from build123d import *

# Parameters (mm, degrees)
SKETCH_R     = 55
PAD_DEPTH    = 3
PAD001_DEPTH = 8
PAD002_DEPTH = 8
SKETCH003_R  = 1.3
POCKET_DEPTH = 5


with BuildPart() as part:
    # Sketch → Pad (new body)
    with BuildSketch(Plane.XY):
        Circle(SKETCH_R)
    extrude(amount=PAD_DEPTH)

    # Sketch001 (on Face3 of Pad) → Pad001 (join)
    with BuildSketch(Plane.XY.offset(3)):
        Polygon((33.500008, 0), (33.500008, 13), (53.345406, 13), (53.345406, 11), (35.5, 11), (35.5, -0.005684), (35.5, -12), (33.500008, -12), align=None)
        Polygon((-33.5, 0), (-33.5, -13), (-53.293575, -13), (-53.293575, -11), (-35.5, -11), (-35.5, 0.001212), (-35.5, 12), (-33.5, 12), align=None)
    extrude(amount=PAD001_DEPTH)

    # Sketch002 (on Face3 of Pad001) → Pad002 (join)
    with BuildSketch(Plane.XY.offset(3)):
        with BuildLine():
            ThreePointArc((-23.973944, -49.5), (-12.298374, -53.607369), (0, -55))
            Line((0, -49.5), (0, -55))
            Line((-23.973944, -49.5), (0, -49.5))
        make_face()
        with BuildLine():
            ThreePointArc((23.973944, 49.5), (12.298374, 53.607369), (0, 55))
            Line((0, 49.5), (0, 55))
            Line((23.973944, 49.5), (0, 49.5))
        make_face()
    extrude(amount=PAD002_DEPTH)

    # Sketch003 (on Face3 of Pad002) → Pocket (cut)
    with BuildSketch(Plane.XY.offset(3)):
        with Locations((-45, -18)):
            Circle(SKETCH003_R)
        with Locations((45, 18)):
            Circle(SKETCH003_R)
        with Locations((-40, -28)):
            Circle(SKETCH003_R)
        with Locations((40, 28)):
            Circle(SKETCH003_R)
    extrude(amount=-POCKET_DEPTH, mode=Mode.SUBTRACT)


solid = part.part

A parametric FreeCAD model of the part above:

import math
import FreeCAD as App
import Part
import Sketcher
Q = App.Units.Quantity


def add_polygon(sketch, points):
    """Adds a closed chain of lines whose ends are joined by coincident constraints."""
    first, n = sketch.GeometryCount, len(points)
    for a, b in zip(points, points[1:] + points[:1]):
        sketch.addGeometry(Part.LineSegment(App.Vector(*a, 0), App.Vector(*b, 0)), False)
    for i in range(n):
        sketch.addConstraint(Sketcher.Constraint("Coincident", first + i, 2, first + (i + 1) % n, 1))

doc = App.newDocument("Part")
body = doc.addObject("PartDesign::Body", "Body")

# Sketch on XY plane
sketch1 = body.newObject("Sketcher::SketchObject", "Sketch")
sketch1.AttachmentSupport = (doc.getObject("XY_Plane"), [""])
sketch1.MapMode = "FlatFace"
sketch1.addGeometry(Part.Circle(App.Vector(0, 0, 0), App.Vector(0, 0, 1), 55), False)
sketch1.addConstraint([
    Sketcher.Constraint("Coincident", 0, 3, -1, 1),
    Sketcher.Constraint("Diameter", 0, Q("110 mm")),
])
pad1 = body.newObject("PartDesign::Pad", "Pad")
pad1.Profile = sketch1
pad1.Length = 3

# Sketch on XY plane
sketch2 = body.newObject("Sketcher::SketchObject", "Sketch001")
sketch2.AttachmentSupport = (doc.getObject("XY_Plane"), [""])
sketch2.MapMode = "FlatFace"
sketch2.AttachmentOffset = App.Placement(App.Vector(0, 0, 3), App.Rotation())
add_polygon(sketch2, [(33.5, 13), (33.5, -12), (35.5, -12), (35.5, 11), (53.3, 11), (53.3, 13)])  # lines 0-5
add_polygon(sketch2, [(-33.5, -13), (-33.5, 12), (-35.5, 12), (-35.5, -11), (-53.3, -11), (-53.3, -13)])  # lines 6-11
sketch2.addConstraint([
    Sketcher.Constraint("Vertical", 0),
    Sketcher.Constraint("Horizontal", 1),
    Sketcher.Constraint("Vertical", 2),
    Sketcher.Constraint("Horizontal", 3),
    Sketcher.Constraint("Vertical", 4),
    Sketcher.Constraint("Horizontal", 5),
    Sketcher.Constraint("Vertical", 6),
    Sketcher.Constraint("Horizontal", 7),
    Sketcher.Constraint("Vertical", 8),
    Sketcher.Constraint("Horizontal", 9),
    Sketcher.Constraint("Vertical", 10),
    Sketcher.Constraint("Horizontal", 11),
    Sketcher.Constraint("Symmetric", 0, 2, 6, 2, -1, 1),
    Sketcher.Constraint("Symmetric", 2, 2, 8, 2, -1, 1),
    Sketcher.Constraint("Equal", 7, 4),
    Sketcher.Constraint("Equal", 0, 6),
    Sketcher.Constraint("DistanceX", 7, 2, 7, 1, Q("2 mm")),
    Sketcher.Constraint("DistanceY", 0, 2, 0, 1, Q("25 mm")),
    Sketcher.Constraint("DistanceY", 0, 2, -1, 1, Q("12 mm")),
    Sketcher.Constraint("DistanceX", 6, 2, 2, 2, Q("69 mm")),
    Sketcher.Constraint("DistanceX", 3, 1, 3, 2, Q("17.845406 mm")),
    Sketcher.Constraint("DistanceX", 9, 2, 9, 1, Q("17.793575 mm")),
])
pad2 = body.newObject("PartDesign::Pad", "Pad001")
pad2.Profile = sketch2
pad2.Length = 8

# Sketch on XY plane
sketch3 = body.newObject("Sketcher::SketchObject", "Sketch002")
sketch3.AttachmentSupport = (doc.getObject("XY_Plane"), [""])
sketch3.MapMode = "FlatFace"
sketch3.AttachmentOffset = App.Placement(App.Vector(0, 0, 3), App.Rotation())
sketch3.addGeometry([
    Part.ArcOfCircle(Part.Circle(App.Vector(0, 0, 0), App.Vector(0, 0, 1), 55), math.radians(-116), math.radians(-90)),  # 0
    Part.LineSegment(App.Vector(0, -55, 0), App.Vector(0, -50, 0)),  # 1
    Part.LineSegment(App.Vector(0, -50, 0), App.Vector(-24, -50, 0)),  # 2
    Part.ArcOfCircle(Part.Circle(App.Vector(0, 0, 0), App.Vector(0, 0, 1), 55), math.radians(64), math.radians(90)),  # 3
    Part.LineSegment(App.Vector(0, 55, 0), App.Vector(0, 50, 0)),  # 4
    Part.LineSegment(App.Vector(0, 50, 0), App.Vector(24, 50, 0)),  # 5
], False)
sketch3.addConstraint([
    Sketcher.Constraint("Coincident", 0, 2, 1, 1),
    Sketcher.Constraint("Coincident", 1, 2, 2, 1),
    Sketcher.Constraint("Coincident", 2, 2, 0, 1),
    Sketcher.Constraint("Coincident", 3, 2, 4, 1),
    Sketcher.Constraint("Coincident", 4, 2, 5, 1),
    Sketcher.Constraint("Coincident", 5, 2, 3, 1),
    Sketcher.Constraint("Vertical", 1),
    Sketcher.Constraint("Horizontal", 2),
    Sketcher.Constraint("Vertical", 4),
    Sketcher.Constraint("Horizontal", 5),
    Sketcher.Constraint("Coincident", 0, 3, -1, 1),
    Sketcher.Constraint("Coincident", 3, 3, -1, 1),
    Sketcher.Constraint("Equal", 0, 3),
    Sketcher.Constraint("Symmetric", 1, 2, 4, 2, -1, 1),
    Sketcher.Constraint("PointOnObject", 0, 2, -2),
    Sketcher.Constraint("DistanceY", 1, 1, 1, 2, Q("5.5 mm")),
    Sketcher.Constraint("DistanceY", 0, 2, -1, 1, Q("55 mm")),
])
pad3 = body.newObject("PartDesign::Pad", "Pad002")
pad3.Profile = sketch3
pad3.Length = 8

# Sketch on XY plane
sketch4 = body.newObject("Sketcher::SketchObject", "Sketch003")
sketch4.AttachmentSupport = (doc.getObject("XY_Plane"), [""])
sketch4.MapMode = "FlatFace"
sketch4.AttachmentOffset = App.Placement(App.Vector(0, 0, 3), App.Rotation())
sketch4.addGeometry([
    Part.Circle(App.Vector(-45, -18, 0), App.Vector(0, 0, 1), 1.3),
    Part.Circle(App.Vector(45, 18, 0), App.Vector(0, 0, 1), 1.3),
    Part.Circle(App.Vector(-40, -28, 0), App.Vector(0, 0, 1), 1.3),
    Part.Circle(App.Vector(40, 28, 0), App.Vector(0, 0, 1), 1.3),
], False)
sketch4.addConstraint([
    Sketcher.Constraint("Equal", 0, 1),
    Sketcher.Constraint("Equal", 1, 2),
    Sketcher.Constraint("Equal", 2, 3),
    Sketcher.Constraint("Symmetric", 0, 3, 1, 3, -1, 1),
    Sketcher.Constraint("Symmetric", 2, 3, 3, 3, -1, 1),
    Sketcher.Constraint("Diameter", 0, Q("2.6 mm")),
    Sketcher.Constraint("DistanceX", 0, 3, -1, 1, Q("45 mm")),
    Sketcher.Constraint("DistanceY", 0, 3, -1, 1, Q("18 mm")),
    Sketcher.Constraint("DistanceX", 2, 3, -1, 1, Q("40 mm")),
    Sketcher.Constraint("DistanceY", 2, 3, -1, 1, Q("28 mm")),
])
pocket1 = body.newObject("PartDesign::Pocket", "Pocket")
pocket1.Profile = sketch4
pocket1.Length = 5

doc.recompute()
